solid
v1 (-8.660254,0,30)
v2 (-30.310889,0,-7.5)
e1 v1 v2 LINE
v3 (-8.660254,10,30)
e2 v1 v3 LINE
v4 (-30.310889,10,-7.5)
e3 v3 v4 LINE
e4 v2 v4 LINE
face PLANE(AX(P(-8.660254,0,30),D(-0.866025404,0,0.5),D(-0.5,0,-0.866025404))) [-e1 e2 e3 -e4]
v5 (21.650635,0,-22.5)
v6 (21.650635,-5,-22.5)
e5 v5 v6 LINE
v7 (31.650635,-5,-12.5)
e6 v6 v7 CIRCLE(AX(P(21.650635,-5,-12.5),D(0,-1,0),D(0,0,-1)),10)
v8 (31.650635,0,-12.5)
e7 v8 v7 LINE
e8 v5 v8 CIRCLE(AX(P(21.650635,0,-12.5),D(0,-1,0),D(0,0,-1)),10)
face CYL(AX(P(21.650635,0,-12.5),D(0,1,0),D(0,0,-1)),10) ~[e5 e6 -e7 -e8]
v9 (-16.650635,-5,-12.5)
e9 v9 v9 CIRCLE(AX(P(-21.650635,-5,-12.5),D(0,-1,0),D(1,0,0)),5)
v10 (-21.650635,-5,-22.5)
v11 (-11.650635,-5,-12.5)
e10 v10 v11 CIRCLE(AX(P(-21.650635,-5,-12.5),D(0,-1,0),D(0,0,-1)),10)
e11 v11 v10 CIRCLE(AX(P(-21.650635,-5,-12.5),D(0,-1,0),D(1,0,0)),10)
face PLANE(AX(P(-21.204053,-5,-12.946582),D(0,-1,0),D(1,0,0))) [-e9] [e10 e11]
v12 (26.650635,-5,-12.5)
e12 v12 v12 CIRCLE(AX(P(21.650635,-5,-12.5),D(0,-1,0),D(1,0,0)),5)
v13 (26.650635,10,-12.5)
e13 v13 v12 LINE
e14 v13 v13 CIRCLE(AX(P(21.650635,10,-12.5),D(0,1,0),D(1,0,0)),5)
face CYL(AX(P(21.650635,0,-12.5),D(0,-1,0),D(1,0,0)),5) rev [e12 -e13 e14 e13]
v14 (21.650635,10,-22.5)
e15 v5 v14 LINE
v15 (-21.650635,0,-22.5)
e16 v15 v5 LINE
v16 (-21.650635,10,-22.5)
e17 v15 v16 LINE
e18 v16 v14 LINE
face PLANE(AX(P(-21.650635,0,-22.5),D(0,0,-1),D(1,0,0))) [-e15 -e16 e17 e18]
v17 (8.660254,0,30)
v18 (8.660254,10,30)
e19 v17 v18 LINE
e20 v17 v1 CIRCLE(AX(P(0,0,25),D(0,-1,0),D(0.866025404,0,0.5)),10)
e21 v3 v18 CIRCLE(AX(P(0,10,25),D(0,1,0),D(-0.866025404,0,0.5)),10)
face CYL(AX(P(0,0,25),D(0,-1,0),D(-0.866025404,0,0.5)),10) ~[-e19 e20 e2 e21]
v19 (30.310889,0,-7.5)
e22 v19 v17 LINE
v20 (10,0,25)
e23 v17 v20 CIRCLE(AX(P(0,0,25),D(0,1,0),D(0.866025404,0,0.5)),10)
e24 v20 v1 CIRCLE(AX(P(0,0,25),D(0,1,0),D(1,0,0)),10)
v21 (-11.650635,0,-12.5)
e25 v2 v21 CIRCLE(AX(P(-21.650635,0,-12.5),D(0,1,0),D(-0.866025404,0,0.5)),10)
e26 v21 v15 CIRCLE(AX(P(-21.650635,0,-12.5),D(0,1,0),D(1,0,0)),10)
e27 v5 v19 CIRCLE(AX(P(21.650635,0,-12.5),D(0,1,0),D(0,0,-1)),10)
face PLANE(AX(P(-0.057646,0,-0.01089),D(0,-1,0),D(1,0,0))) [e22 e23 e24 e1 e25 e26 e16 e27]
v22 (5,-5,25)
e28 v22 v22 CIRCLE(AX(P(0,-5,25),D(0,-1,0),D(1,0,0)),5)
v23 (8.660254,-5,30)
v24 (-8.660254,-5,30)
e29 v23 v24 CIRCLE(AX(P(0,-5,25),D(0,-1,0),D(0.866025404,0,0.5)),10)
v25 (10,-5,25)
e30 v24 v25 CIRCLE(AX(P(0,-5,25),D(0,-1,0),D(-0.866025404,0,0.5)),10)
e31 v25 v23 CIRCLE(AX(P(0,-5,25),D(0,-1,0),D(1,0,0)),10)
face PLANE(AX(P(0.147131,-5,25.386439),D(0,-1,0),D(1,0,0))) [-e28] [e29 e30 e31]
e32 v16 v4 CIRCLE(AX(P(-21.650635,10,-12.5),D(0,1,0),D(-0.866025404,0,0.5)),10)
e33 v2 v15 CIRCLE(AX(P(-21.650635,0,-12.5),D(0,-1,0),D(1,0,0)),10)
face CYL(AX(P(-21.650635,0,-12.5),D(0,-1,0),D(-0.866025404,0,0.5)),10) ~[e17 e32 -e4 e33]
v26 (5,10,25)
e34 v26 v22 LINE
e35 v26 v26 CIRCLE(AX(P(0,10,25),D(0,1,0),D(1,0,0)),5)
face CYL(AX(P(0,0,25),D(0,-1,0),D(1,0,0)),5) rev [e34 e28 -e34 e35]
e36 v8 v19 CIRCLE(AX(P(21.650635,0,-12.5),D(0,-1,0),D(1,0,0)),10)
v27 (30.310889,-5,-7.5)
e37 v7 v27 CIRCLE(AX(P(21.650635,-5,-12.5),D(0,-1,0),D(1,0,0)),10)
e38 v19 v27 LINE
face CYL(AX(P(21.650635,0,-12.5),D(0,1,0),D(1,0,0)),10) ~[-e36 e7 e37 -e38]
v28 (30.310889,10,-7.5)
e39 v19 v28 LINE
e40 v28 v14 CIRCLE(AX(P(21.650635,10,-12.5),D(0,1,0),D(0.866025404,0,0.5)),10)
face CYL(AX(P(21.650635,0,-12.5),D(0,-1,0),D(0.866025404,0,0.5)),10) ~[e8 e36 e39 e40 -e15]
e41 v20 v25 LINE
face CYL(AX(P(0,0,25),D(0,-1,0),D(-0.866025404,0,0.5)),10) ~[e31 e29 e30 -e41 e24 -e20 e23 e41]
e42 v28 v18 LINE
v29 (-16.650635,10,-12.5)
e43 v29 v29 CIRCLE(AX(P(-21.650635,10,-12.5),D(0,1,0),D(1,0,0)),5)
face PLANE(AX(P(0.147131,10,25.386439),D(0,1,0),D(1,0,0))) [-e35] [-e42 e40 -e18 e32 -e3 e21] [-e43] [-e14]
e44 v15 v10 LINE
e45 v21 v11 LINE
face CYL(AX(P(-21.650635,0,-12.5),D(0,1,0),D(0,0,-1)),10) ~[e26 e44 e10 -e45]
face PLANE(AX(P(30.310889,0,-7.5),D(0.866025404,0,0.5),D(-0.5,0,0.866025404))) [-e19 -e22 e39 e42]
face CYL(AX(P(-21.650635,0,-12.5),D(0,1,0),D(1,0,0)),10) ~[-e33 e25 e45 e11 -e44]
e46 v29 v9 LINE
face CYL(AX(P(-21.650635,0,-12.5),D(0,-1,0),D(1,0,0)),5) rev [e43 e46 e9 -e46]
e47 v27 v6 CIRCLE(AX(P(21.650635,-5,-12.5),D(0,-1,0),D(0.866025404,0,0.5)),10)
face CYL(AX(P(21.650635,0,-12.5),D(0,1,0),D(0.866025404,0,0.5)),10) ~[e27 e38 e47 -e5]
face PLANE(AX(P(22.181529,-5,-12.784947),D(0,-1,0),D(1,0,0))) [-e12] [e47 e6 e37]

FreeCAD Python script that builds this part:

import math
import FreeCAD as App
import Part
import Sketcher
Q = App.Units.Quantity

doc = App.newDocument("Part")
body = doc.addObject("PartDesign::Body", "Body")
body.AllowCompound = True

# Sketch on XZ plane
sketch1 = body.newObject("Sketcher::SketchObject", "Sketch")
sketch1.AttachmentSupport = (doc.getObject("XZ_Plane"), [""])
sketch1.MapMode = "FlatFace"
sketch1.addGeometry(Part.ArcOfCircle(Part.Circle(App.Vector(0, 25, 0), App.Vector(0, 0, 1), 10), math.radians(0), math.radians(30)), False)
sketch1.addGeometry(Part.ArcOfCircle(Part.Circle(App.Vector(0, 25, 0), App.Vector(0, 0, 1), 10), math.radians(150), math.radians(360)), False)
sketch1.addGeometry(Part.LineSegment(App.Vector(-9, 30, 0), App.Vector(-30, -8, 0)), False)
sketch1.addGeometry(Part.ArcOfCircle(Part.Circle(App.Vector(-22, -12, 0), App.Vector(0, 0, 1), 10), math.radians(0), math.radians(150)), False)
sketch1.addGeometry(Part.ArcOfCircle(Part.Circle(App.Vector(-22, -12, 0), App.Vector(0, 0, 1), 10), math.radians(-90), math.radians(0)), False)
sketch1.addGeometry(Part.LineSegment(App.Vector(-22, -22, 0), App.Vector(22, -22, 0)), False)
sketch1.addGeometry(Part.ArcOfCircle(Part.Circle(App.Vector(22, -12, 0), App.Vector(0, 0, 1), 10), math.radians(30), math.radians(270)), False)
sketch1.addGeometry(Part.LineSegment(App.Vector(30, -8, 0), App.Vector(9, 30, 0)), False)
sketch1.addConstraint(Sketcher.Constraint("Tangent", 0, 1, 1, 2))
sketch1.addConstraint(Sketcher.Constraint("Tangent", 1, 1, 2, 1))
sketch1.addConstraint(Sketcher.Constraint("Tangent", 2, 2, 3, 2))
sketch1.addConstraint(Sketcher.Constraint("Tangent", 3, 1, 4, 2))
sketch1.addConstraint(Sketcher.Constraint("Tangent", 4, 1, 5, 1))
sketch1.addConstraint(Sketcher.Constraint("Tangent", 5, 2, 6, 2))
sketch1.addConstraint(Sketcher.Constraint("Tangent", 6, 1, 7, 1))
sketch1.addConstraint(Sketcher.Constraint("Tangent", 7, 2, 0, 2))
sketch1.addConstraint(Sketcher.Constraint("Horizontal", 5))
sketch1.addConstraint(Sketcher.Constraint("Equal", 0, 1))
sketch1.addConstraint(Sketcher.Constraint("Equal", 1, 3))
sketch1.addConstraint(Sketcher.Constraint("Equal", 3, 4))
sketch1.addConstraint(Sketcher.Constraint("Equal", 4, 6))
sketch1.addConstraint(Sketcher.Constraint("Symmetric", 2, 2, 6, 1, -2))
sketch1.addConstraint(Sketcher.Constraint("Horizontal", 1, 3, 0, 1))
sketch1.addConstraint(Sketcher.Constraint("Horizontal", 6, 3, 3, 1))
sketch1.addConstraint(Sketcher.Constraint("Radius", 0, 10.0))
sketch1.addConstraint(Sketcher.Constraint("Angle", 2, Q("-120 deg")))
sketch1.addConstraint(Sketcher.Constraint("DistanceY", -1, 1, 0, 3, 25.0))
sketch1.addConstraint(Sketcher.Constraint("DistanceY", 3, 3, -1, 1, 12.5))
pad1 = body.newObject("PartDesign::Pad", "Pad")
pad1.Profile = sketch1
pad1.Length = 10
pad1.Reversed = True

# Sketch on XZ plane
sketch2 = body.newObject("Sketcher::SketchObject", "Sketch001")
sketch2.AttachmentSupport = (doc.getObject("XZ_Plane"), [""])
sketch2.MapMode = "FlatFace"
sketch2.addGeometry(Part.ArcOfCircle(Part.Circle(App.Vector(0, 25, 0), App.Vector(0, 0, 1), 10), math.radians(150), math.radians(360)), False)
sketch2.addGeometry(Part.ArcOfCircle(Part.Circle(App.Vector(0, 25, 0), App.Vector(0, 0, 1), 10), math.radians(0), math.radians(30)), False)
sketch2.addGeometry(Part.ArcOfCircle(Part.Circle(App.Vector(0, 25, 0), App.Vector(0, 0, 1), 10), math.radians(30), math.radians(150)), False)
sketch2.addGeometry(Part.Circle(App.Vector(0, 25, 0), App.Vector(0, 0, 1), 5), False)
sketch2.addGeometry(Part.ArcOfCircle(Part.Circle(App.Vector(-22, -12, 0), App.Vector(0, 0, 1), 10), math.radians(0), math.radians(270)), False)
sketch2.addGeometry(Part.ArcOfCircle(Part.Circle(App.Vector(-22, -12, 0), App.Vector(0, 0, 1), 10), math.radians(-90), math.radians(0)), False)
sketch2.addGeometry(Part.Circle(App.Vector(-22, -12, 0), App.Vector(0, 0, 1), 5), False)
sketch2.addGeometry(Part.ArcOfCircle(Part.Circle(App.Vector(22, -12, 0), App.Vector(0, 0, 1), 10), math.radians(0), math.radians(30)), False)
sketch2.addGeometry(Part.ArcOfCircle(Part.Circle(App.Vector(22, -12, 0), App.Vector(0, 0, 1), 10), math.radians(30), math.radians(270)), False)
sketch2.addGeometry(Part.ArcOfCircle(Part.Circle(App.Vector(22, -12, 0), App.Vector(0, 0, 1), 10), math.radians(-90), math.radians(0)), False)
sketch2.addGeometry(Part.Circle(App.Vector(22, -12, 0), App.Vector(0, 0, 1), 5), False)
sketch2.addConstraint(Sketcher.Constraint("Tangent", 0, 2, 1, 1))
sketch2.addConstraint(Sketcher.Constraint("Tangent", 1, 2, 2, 1))
sketch2.addConstraint(Sketcher.Constraint("Tangent", 2, 2, 0, 1))
sketch2.addConstraint(Sketcher.Constraint("Tangent", 4, 1, 5, 2))
sketch2.addConstraint(Sketcher.Constraint("Coincident", 5, 1, 4, 2))
sketch2.addConstraint(Sketcher.Constraint("Tangent", 7, 2, 8, 1))
sketch2.addConstraint(Sketcher.Constraint("Tangent", 8, 2, 9, 1))
sketch2.addConstraint(Sketcher.Constraint("Tangent", 9, 2, 7, 1))
sketch2.addConstraint(Sketcher.Constraint("Coincident", 3, 3, 0, 3))
sketch2.addConstraint(Sketcher.Constraint("Coincident", 6, 3, 4, 3))
sketch2.addConstraint(Sketcher.Constraint("Coincident", 10, 3, 7, 3))
sketch2.addConstraint(Sketcher.Constraint("Equal", 2, 4))
sketch2.addConstraint(Sketcher.Constraint("Equal", 3, 6))
sketch2.addConstraint(Sketcher.Constraint("Equal", 5, 7))
sketch2.addConstraint(Sketcher.Constraint("Equal", 6, 10))
sketch2.addConstraint(Sketcher.Constraint("Symmetric", 4, 3, 7, 3, -2))
sketch2.addConstraint(Sketcher.Constraint("Symmetric", 1, 2, 2, 2, -2))
sketch2.addConstraint(Sketcher.Constraint("Horizontal", 3, 3, 0, 2))
sketch2.addConstraint(Sketcher.Constraint("Horizontal", 10, 3, 4, 1))
sketch2.addConstraint(Sketcher.Constraint("Horizontal", 4, 1, 9, 2))
sketch2.addConstraint(Sketcher.Constraint("Vertical", 6, 3, 5, 1))
sketch2.addConstraint(Sketcher.Constraint("Vertical", 10, 3, 8, 2))
sketch2.addConstraint(Sketcher.Constraint("Diameter", 3, 10.0))
sketch2.addConstraint(Sketcher.Constraint("Radius", 0, 10.0))
sketch2.addConstraint(Sketcher.Constraint("DistanceY", -1, 1, 0, 3, 25.0))
sketch2.addConstraint(Sketcher.Constraint("DistanceY", -1, 1, 1, 2, 30.0))
sketch2.addConstraint(Sketcher.Constraint("DistanceY", 8, 3, 7, 2, 5.0))
sketch2.addConstraint(Sketcher.Constraint("DistanceY", 4, 3, -1, 1, 12.5))
sketch2.addConstraint(Sketcher.Constraint("DistanceX", -1, 1, 7, 2, 30.310889))
pad2 = body.newObject("PartDesign::Pad", "Pad001")
pad2.Profile = sketch2
pad2.Length = 5

# Sketch on XZ plane
sketch3 = body.newObject("Sketcher::SketchObject", "Sketch002")
sketch3.AttachmentSupport = (doc.getObject("XZ_Plane"), [""])
sketch3.MapMode = "FlatFace"
sketch3.addGeometry(Part.ArcOfCircle(Part.Circle(App.Vector(0, 25, 0), App.Vector(0, 0, 1), 10), math.radians(0), math.radians(30)), False)
sketch3.addGeometry(Part.ArcOfCircle(Part.Circle(App.Vector(0, 25, 0), App.Vector(0, 0, 1), 10), math.radians(150), math.radians(360)), False)
sketch3.addGeometry(Part.ArcOfCircle(Part.Circle(App.Vector(0, 25, 0), App.Vector(0, 0, 1), 10), math.radians(30), math.radians(150)), False)
sketch3.addGeometry(Part.Circle(App.Vector(0, 25, 0), App.Vector(0, 0, 1), 5), False)
sketch3.addGeometry(Part.Circle(App.Vector(22, -12, 0), App.Vector(0, 0, 1), 10), False)
sketch3.addGeometry(Part.Circle(App.Vector(22, -12, 0), App.Vector(0, 0, 1), 5), False)
sketch3.addGeometry(Part.Circle(App.Vector(-22, -12, 0), App.Vector(0, 0, 1), 10), False)
sketch3.addGeometry(Part.Circle(App.Vector(-22, -12, 0), App.Vector(0, 0, 1), 5), False)
sketch3.addConstraint(Sketcher.Constraint("Tangent", 0, 1, 1, 2))
sketch3.addConstraint(Sketcher.Constraint("Tangent", 1, 1, 2, 2))
sketch3.addConstraint(Sketcher.Constraint("Tangent", 2, 1, 0, 2))
sketch3.addConstraint(Sketcher.Constraint("Coincident", 3, 3, 0, 3))
sketch3.addConstraint(Sketcher.Constraint("Coincident", 5, 3, 4, 3))
sketch3.addConstraint(Sketcher.Constraint("Coincident", 7, 3, 6, 3))
sketch3.addConstraint(Sketcher.Constraint("Equal", 2, 4))
sketch3.addConstraint(Sketcher.Constraint("Equal", 3, 5))
sketch3.addConstraint(Sketcher.Constraint("Equal", 4, 6))
sketch3.addConstraint(Sketcher.Constraint("Equal", 5, 7))
sketch3.addConstraint(Sketcher.Constraint("Symmetric", 4, 3, 6, 3, -2))
sketch3.addConstraint(Sketcher.Constraint("Symmetric", 1, 1, 2, 1, -2))
sketch3.addConstraint(Sketcher.Constraint("Horizontal", 3, 3, 0, 1))
sketch3.addConstraint(Sketcher.Constraint("Diameter", 3, 10.0))
sketch3.addConstraint(Sketcher.Constraint("Diameter", 4, 20.0))
sketch3.addConstraint(Sketcher.Constraint("DistanceY", -1, 1, 0, 3, 25.0))
sketch3.addConstraint(Sketcher.Constraint("DistanceY", -1, 1, 1, 1, 30.0))
sketch3.addConstraint(Sketcher.Constraint("DistanceY", 4, 3, -1, 1, 12.5))
sketch3.addConstraint(Sketcher.Constraint("DistanceX", 6, 3, 4, 3, 43.30127))
pad3 = body.newObject("PartDesign::Pad", "Pad002")
pad3.Profile = sketch3
pad3.Length = 10
pad3.Reversed = True

doc.recompute()
